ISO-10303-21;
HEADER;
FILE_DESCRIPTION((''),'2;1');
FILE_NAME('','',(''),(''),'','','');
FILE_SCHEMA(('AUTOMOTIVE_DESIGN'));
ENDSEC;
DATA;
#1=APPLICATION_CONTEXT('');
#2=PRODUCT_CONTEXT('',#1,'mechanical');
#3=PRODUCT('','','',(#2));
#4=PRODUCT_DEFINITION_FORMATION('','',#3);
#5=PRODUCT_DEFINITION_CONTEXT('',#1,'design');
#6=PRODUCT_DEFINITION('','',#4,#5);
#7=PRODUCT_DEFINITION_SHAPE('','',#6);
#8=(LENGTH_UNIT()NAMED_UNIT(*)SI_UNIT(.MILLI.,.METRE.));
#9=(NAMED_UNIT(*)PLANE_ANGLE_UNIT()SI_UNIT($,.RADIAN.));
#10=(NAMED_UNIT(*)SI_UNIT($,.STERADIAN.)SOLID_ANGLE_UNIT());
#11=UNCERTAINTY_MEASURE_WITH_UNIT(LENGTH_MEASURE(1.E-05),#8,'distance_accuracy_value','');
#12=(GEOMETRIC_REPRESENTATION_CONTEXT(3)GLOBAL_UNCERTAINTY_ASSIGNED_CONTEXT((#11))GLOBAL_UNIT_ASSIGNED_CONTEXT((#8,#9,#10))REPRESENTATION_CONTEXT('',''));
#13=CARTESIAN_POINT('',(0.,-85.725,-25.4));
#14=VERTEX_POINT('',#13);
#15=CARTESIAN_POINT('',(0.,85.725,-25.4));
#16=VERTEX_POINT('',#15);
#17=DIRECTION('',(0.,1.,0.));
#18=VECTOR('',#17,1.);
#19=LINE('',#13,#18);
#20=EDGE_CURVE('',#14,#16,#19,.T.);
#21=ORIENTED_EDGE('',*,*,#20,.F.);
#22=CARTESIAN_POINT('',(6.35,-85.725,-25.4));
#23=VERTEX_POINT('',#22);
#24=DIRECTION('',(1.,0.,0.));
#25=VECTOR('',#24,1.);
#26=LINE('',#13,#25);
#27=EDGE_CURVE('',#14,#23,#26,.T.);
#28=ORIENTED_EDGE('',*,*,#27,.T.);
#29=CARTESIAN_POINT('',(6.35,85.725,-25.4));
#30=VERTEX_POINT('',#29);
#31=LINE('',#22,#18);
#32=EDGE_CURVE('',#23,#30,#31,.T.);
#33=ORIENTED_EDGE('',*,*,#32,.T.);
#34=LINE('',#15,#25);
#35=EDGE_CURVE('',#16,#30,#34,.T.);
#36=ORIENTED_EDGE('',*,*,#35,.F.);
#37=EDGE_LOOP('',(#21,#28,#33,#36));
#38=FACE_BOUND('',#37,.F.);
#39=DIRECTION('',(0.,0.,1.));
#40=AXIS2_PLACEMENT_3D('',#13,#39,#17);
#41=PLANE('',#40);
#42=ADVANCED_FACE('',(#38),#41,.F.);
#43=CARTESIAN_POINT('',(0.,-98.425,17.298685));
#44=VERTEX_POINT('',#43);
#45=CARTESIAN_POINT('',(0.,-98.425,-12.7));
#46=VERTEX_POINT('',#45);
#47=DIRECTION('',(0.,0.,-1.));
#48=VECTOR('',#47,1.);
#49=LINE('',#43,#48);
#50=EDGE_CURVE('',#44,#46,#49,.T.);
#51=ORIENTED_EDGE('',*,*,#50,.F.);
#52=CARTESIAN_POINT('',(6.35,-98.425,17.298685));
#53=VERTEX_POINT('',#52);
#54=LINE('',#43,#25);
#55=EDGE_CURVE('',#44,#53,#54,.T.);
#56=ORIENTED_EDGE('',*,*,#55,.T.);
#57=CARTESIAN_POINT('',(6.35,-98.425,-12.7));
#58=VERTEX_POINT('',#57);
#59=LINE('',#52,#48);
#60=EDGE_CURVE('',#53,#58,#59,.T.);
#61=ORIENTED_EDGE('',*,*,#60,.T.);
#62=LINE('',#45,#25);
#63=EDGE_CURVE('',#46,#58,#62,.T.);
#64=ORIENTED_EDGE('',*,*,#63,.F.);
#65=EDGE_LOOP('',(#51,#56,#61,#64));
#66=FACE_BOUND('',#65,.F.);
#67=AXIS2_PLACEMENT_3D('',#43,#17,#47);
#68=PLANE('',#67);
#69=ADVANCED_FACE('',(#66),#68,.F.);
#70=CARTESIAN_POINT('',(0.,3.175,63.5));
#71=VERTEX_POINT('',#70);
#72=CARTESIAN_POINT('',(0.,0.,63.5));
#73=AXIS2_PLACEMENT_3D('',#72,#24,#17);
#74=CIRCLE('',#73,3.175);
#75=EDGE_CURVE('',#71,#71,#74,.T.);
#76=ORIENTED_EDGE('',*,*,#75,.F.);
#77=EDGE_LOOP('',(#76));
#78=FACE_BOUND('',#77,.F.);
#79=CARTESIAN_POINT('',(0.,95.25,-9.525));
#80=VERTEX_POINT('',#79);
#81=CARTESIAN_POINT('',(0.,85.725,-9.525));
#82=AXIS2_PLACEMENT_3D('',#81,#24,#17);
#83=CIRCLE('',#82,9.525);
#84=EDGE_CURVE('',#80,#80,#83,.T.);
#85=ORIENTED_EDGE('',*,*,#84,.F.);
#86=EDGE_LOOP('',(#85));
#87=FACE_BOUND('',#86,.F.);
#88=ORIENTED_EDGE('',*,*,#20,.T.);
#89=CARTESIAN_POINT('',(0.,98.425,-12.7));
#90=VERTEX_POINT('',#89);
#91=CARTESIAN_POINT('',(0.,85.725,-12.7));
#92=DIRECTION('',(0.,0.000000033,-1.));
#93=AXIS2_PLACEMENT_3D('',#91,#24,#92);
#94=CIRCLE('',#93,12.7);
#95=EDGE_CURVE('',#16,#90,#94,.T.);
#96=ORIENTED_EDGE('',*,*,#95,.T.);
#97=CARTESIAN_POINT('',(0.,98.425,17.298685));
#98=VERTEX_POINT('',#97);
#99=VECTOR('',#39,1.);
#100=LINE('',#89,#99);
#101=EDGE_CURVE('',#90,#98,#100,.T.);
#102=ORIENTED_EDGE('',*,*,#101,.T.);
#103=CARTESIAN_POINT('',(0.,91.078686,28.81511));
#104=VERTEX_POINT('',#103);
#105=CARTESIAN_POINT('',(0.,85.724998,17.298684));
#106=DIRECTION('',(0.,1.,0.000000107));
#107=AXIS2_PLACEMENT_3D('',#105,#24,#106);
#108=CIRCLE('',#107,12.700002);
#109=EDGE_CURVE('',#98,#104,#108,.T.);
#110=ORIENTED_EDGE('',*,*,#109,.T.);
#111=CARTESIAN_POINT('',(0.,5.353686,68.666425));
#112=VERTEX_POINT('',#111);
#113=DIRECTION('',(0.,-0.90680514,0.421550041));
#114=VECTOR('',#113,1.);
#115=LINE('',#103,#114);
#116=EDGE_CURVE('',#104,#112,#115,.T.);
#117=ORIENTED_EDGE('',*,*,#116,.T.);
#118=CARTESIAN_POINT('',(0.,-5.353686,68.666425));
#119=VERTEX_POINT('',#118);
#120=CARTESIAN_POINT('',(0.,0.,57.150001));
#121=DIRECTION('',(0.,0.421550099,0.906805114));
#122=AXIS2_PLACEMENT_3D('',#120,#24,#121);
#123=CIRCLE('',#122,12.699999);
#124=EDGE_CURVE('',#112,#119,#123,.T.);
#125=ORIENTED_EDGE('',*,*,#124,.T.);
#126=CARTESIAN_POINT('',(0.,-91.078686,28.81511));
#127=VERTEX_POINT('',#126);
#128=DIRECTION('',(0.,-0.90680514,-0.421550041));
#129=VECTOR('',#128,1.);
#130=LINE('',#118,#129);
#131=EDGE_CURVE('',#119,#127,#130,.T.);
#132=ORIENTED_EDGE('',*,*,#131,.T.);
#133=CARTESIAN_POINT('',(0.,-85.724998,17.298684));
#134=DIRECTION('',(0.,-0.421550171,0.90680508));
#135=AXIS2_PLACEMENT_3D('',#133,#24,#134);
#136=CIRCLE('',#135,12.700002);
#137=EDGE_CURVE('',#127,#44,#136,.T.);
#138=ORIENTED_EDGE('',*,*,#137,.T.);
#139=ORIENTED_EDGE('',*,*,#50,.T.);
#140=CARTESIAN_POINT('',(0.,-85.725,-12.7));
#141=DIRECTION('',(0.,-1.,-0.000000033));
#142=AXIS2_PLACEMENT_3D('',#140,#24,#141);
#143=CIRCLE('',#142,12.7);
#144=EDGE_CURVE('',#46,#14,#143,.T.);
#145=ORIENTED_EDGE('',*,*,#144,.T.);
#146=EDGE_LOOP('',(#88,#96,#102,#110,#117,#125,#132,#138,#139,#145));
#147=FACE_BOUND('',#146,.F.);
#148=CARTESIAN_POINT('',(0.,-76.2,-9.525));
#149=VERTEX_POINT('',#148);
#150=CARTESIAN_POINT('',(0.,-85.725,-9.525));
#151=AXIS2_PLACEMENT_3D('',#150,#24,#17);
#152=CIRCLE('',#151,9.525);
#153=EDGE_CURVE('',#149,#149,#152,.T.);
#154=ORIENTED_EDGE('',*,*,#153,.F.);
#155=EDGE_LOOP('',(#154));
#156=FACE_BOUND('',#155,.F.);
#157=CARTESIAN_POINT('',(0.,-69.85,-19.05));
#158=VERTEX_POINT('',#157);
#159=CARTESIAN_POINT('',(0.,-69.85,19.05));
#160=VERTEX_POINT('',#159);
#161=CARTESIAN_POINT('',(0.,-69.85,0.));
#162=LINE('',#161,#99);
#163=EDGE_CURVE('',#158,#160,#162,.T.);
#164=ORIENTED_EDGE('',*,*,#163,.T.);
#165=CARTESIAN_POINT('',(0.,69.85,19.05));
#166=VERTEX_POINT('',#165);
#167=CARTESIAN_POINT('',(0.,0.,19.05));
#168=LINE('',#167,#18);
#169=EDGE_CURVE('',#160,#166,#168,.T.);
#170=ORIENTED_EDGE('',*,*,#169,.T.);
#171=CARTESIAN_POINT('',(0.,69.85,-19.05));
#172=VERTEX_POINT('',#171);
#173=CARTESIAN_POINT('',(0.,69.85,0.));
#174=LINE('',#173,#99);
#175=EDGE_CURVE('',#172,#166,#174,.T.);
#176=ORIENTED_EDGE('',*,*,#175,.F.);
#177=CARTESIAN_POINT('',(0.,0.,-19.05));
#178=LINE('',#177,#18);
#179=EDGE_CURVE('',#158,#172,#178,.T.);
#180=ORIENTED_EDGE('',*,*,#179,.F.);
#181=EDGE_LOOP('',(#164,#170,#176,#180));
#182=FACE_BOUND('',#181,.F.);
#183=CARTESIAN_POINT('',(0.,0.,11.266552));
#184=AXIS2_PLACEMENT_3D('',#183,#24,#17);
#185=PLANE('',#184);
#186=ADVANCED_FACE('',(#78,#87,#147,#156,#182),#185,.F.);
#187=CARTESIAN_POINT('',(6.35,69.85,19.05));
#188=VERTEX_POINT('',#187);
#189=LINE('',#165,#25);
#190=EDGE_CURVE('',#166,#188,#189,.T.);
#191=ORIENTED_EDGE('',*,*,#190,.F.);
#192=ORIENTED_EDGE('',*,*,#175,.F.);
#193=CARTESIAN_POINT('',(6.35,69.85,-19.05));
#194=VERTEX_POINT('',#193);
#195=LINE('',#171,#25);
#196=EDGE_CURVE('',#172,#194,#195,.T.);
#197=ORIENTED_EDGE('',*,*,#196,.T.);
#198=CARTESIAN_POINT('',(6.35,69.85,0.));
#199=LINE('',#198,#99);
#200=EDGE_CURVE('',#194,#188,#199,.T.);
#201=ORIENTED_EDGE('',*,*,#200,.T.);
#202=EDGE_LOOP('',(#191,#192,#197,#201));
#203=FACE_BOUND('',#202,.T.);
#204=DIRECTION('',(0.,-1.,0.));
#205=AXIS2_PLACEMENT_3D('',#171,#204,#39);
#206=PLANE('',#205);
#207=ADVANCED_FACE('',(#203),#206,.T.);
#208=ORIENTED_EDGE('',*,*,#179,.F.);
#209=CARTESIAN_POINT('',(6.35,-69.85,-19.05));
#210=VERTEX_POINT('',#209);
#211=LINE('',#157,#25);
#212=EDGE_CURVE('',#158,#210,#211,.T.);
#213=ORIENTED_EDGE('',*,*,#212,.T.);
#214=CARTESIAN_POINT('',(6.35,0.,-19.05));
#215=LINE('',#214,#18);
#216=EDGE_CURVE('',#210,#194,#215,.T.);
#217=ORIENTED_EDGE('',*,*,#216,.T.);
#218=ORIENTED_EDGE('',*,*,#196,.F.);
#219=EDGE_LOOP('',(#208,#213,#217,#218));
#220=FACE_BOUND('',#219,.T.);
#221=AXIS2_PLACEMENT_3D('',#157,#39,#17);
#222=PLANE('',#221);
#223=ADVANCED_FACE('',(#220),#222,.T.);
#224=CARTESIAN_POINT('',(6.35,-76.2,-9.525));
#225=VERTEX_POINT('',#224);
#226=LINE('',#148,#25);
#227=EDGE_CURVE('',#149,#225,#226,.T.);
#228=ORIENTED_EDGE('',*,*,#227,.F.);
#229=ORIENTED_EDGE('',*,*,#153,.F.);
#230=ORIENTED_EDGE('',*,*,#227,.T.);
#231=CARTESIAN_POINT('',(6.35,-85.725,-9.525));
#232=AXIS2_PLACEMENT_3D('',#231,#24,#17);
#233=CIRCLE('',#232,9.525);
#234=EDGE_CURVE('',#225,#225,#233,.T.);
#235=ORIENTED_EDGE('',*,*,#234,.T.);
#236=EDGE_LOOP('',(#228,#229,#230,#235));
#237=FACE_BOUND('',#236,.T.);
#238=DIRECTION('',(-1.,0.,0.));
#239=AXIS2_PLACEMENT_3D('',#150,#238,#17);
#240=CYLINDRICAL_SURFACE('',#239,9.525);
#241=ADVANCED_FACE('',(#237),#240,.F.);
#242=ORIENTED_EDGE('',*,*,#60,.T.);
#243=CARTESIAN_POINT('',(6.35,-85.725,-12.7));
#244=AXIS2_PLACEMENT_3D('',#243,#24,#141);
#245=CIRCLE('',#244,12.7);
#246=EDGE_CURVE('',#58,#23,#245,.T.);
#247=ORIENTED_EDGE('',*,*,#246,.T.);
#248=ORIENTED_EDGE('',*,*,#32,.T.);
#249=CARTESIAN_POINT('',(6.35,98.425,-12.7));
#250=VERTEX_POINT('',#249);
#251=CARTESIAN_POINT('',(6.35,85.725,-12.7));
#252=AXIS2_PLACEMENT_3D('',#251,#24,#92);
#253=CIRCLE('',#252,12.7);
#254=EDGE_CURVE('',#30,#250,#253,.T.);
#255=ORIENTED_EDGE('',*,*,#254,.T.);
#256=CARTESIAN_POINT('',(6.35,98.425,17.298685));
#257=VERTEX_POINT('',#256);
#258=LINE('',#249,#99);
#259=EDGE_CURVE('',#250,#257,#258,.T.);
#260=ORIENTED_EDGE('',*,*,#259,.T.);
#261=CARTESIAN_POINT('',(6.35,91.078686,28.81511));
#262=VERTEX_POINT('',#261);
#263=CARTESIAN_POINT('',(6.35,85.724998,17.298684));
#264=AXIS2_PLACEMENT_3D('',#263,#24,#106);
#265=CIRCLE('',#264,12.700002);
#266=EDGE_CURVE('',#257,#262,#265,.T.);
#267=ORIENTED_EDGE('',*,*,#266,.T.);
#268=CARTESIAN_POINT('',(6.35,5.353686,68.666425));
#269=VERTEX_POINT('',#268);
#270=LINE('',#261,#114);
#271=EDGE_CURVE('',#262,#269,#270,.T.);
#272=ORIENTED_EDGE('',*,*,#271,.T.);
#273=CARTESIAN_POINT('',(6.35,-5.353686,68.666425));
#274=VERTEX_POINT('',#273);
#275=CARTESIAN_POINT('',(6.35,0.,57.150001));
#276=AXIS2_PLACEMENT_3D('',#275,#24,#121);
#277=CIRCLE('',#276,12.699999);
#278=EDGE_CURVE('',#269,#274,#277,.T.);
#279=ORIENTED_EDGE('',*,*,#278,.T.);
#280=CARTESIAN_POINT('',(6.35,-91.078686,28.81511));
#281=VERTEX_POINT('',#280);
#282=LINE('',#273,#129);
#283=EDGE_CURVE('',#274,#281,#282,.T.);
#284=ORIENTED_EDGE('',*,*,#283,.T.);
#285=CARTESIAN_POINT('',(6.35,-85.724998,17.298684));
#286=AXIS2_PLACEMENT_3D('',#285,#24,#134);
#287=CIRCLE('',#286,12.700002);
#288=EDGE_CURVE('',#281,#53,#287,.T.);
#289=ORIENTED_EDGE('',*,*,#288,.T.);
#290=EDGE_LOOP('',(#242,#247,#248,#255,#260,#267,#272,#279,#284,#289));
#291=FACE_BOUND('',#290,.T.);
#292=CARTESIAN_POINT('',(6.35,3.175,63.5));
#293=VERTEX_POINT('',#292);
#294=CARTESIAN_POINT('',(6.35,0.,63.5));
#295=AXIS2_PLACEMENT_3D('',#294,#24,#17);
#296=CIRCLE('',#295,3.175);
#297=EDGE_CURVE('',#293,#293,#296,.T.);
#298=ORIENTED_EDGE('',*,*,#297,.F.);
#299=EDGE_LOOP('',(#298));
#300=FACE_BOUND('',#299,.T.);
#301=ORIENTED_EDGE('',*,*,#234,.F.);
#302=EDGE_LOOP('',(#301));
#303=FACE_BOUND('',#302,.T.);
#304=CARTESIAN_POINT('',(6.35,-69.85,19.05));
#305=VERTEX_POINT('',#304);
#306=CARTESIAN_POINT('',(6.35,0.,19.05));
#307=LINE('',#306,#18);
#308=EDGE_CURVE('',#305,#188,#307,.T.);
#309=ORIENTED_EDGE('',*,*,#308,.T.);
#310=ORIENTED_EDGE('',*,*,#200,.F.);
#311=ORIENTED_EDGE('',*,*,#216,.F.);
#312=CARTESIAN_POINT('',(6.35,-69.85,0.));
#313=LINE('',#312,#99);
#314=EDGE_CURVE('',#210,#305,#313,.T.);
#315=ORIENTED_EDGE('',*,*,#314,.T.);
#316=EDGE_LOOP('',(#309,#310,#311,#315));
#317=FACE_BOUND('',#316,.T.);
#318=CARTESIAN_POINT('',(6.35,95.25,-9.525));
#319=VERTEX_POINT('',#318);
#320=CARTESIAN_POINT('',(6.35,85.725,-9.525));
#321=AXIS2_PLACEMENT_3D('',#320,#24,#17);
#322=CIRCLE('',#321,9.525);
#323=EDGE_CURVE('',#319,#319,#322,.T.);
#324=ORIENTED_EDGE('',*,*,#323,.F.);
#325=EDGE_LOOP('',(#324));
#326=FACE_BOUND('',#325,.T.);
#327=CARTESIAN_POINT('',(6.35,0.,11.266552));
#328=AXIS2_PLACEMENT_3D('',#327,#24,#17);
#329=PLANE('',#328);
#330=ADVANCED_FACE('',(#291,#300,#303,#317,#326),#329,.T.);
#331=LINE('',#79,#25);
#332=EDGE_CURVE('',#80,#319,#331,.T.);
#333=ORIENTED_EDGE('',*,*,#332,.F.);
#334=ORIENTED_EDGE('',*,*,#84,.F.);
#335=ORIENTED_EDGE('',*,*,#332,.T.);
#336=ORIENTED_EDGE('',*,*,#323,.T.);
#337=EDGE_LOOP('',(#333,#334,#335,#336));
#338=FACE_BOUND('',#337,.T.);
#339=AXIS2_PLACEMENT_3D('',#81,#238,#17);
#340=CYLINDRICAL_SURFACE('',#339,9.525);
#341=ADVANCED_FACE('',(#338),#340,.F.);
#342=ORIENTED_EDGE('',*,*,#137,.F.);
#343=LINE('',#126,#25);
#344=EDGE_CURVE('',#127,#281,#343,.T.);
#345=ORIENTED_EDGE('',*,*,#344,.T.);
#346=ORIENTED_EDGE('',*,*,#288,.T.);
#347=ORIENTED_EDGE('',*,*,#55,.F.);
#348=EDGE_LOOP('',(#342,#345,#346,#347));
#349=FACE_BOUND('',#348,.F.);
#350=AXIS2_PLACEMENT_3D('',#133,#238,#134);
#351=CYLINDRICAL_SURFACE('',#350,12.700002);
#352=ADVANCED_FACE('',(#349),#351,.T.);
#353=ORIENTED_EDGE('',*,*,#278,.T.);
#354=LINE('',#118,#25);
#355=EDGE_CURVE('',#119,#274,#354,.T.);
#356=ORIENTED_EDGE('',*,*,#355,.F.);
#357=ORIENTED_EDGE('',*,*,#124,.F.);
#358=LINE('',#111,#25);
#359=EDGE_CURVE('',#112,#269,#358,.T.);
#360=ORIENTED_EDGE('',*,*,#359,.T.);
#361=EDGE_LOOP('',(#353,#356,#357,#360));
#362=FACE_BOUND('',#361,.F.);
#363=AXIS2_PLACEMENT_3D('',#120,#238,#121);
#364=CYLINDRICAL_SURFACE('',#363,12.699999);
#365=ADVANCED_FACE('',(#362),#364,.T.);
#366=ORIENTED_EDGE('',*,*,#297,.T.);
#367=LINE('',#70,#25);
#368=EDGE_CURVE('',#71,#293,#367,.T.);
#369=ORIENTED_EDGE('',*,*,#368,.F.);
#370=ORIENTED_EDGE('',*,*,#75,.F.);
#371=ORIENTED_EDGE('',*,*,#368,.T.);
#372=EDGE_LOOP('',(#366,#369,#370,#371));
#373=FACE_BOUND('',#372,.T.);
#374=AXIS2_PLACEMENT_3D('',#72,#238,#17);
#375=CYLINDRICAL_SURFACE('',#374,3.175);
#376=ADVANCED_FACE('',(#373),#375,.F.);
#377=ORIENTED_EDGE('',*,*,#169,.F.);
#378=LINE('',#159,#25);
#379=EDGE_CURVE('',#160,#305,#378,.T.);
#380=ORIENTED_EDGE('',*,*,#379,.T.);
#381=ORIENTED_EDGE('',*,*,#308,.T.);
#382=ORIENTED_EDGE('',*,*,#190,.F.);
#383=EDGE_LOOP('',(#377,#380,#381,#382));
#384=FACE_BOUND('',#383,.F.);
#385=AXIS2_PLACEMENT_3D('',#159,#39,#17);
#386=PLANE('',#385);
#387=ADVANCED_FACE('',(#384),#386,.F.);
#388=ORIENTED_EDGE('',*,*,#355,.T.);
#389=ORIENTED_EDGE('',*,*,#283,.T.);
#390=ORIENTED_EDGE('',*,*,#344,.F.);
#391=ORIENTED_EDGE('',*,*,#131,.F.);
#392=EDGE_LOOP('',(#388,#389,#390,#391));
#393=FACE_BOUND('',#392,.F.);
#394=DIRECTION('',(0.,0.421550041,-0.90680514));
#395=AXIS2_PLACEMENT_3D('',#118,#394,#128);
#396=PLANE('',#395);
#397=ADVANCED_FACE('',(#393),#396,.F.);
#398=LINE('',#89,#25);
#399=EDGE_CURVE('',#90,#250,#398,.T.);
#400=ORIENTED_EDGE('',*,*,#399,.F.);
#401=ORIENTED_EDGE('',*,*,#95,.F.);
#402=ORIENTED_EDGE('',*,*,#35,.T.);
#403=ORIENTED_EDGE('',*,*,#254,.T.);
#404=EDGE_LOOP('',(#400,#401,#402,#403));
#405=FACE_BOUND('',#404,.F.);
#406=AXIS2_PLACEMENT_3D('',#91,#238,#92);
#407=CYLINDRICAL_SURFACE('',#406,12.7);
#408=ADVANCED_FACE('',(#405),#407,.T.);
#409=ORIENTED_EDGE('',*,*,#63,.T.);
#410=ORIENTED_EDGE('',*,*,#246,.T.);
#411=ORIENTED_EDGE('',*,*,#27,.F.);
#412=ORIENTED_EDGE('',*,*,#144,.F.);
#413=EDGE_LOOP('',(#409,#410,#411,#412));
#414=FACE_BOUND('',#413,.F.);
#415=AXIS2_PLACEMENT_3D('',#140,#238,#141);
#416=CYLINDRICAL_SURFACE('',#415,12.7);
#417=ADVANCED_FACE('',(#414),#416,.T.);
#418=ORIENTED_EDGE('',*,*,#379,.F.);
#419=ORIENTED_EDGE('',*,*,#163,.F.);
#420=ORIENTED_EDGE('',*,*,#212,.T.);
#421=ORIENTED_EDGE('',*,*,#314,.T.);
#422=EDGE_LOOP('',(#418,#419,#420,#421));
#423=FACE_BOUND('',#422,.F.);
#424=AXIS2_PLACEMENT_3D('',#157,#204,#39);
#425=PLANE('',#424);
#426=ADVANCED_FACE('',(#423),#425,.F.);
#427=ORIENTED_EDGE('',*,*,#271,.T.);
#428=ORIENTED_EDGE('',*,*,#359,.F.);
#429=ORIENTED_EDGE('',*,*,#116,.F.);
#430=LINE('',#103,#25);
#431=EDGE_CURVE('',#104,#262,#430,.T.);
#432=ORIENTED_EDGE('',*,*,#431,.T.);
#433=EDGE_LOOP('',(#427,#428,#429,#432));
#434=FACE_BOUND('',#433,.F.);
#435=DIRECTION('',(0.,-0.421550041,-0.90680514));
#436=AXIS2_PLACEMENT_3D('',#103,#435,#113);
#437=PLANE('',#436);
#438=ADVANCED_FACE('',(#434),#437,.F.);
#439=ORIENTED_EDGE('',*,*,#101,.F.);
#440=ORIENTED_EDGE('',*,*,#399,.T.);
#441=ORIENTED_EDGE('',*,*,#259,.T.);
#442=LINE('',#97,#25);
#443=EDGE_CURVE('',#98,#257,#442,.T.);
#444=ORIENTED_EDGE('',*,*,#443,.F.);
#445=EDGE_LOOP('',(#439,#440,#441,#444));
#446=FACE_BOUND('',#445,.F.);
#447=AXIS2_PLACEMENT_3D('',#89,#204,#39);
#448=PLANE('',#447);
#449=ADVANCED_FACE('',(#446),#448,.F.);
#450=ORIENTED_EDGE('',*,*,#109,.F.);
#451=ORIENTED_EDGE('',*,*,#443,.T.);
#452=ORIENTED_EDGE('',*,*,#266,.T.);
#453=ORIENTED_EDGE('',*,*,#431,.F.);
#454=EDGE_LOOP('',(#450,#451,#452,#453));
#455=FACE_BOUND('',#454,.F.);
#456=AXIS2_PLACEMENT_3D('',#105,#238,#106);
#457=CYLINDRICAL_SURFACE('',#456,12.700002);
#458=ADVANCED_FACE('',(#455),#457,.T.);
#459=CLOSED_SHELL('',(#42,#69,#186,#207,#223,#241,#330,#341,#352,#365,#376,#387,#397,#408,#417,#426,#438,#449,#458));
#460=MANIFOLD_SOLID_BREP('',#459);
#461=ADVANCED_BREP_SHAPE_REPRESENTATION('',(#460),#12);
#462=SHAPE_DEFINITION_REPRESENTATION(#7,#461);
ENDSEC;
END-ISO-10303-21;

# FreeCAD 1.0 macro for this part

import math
import FreeCAD as App
import Part
import Sketcher

V = App.Vector
Q = App.Units.Quantity

doc = App.newDocument("Part")
body = doc.addObject("PartDesign::Body", "Body")

sketch1 = body.newObject("Sketcher::SketchObject", "Sketch")
sketch1.AttachmentSupport = (doc.getObject("YZ_Plane"), [""])
sketch1.MapMode = "FlatFace"
sketch1.addGeometry([
    Part.LineSegment(V(-85.725, -25.4, 0), V(85.725, -25.4, 0)),
    Part.ArcOfCircle(Part.Circle(V(85.725, -12.7, 0), V(0, 0, 1), 12.7), math.radians(-89.999998), math.radians(-0.000002)),
    Part.LineSegment(V(98.425, -12.7, 0), V(98.425, 17.298685, 0)),
    Part.ArcOfCircle(Part.Circle(V(85.724998, 17.298684, 0), V(0, 0, 1), 12.700002), math.radians(0.000006), math.radians(65.067505)),
    Part.LineSegment(V(91.078686, 28.81511, 0), V(5.353686, 68.666425, 0)),
    Part.ArcOfCircle(Part.Circle(V(0, 57.150001, 0), V(0, 0, 1), 12.699999), math.radians(65.06751), math.radians(114.93249)),
    Part.LineSegment(V(-5.353686, 68.666425, 0), V(-91.078686, 28.81511, 0)),
    Part.ArcOfCircle(Part.Circle(V(-85.724998, 17.298684, 0), V(0, 0, 1), 12.700002), math.radians(114.932495), math.radians(179.999994)),
    Part.LineSegment(V(-98.425, 17.298685, 0), V(-98.425, -12.7, 0)),
    Part.ArcOfCircle(Part.Circle(V(-85.725, -12.7, 0), V(0, 0, 1), 12.7), math.radians(-179.999998), math.radians(-90.000002)),
    Part.Circle(V(-85.725, -9.525, 0), V(0, 0, 1), 9.525),
    Part.LineSegment(V(69.85, -19.05, 0), V(-69.85, -19.05, 0)),
    Part.LineSegment(V(-69.85, -19.05, 0), V(-69.85, 19.05, 0)),
    Part.LineSegment(V(-69.85, 19.05, 0), V(69.85, 19.05, 0)),
    Part.LineSegment(V(69.85, 19.05, 0), V(69.85, -19.05, 0)),
    Part.Circle(V(85.725, -9.525, 0), V(0, 0, 1), 9.525),
    Part.Circle(V(0, 63.5, 0), V(0, 0, 1), 3.175),
], False)
sketch1.addConstraint([
    Sketcher.Constraint("Tangent", 0, 2, 1, 1),
    Sketcher.Constraint("Tangent", 1, 2, 2, 1),
    Sketcher.Constraint("Tangent", 2, 2, 3, 1),
    Sketcher.Constraint("Tangent", 3, 2, 4, 1),
    Sketcher.Constraint("Tangent", 4, 2, 5, 1),
    Sketcher.Constraint("Tangent", 5, 2, 6, 1),
    Sketcher.Constraint("Tangent", 6, 2, 7, 1),
    Sketcher.Constraint("Tangent", 7, 2, 8, 1),
    Sketcher.Constraint("Tangent", 8, 2, 9, 1),
    Sketcher.Constraint("Tangent", 9, 2, 0, 1),
    Sketcher.Constraint("Coincident", 11, 2, 12, 1),
    Sketcher.Constraint("Coincident", 12, 2, 13, 1),
    Sketcher.Constraint("Coincident", 13, 2, 14, 1),
    Sketcher.Constraint("Coincident", 14, 2, 11, 1),
    Sketcher.Constraint("Horizontal", 0),
    Sketcher.Constraint("Vertical", 2),
    Sketcher.Constraint("Vertical", 8),
    Sketcher.Constraint("Horizontal", 11),
    Sketcher.Constraint("Vertical", 12),
    Sketcher.Constraint("Horizontal", 13),
    Sketcher.Constraint("Vertical", 14),
    Sketcher.Constraint("Equal", 1, 3),
    Sketcher.Constraint("Equal", 1, 5),
    Sketcher.Constraint("Equal", 3, 7),
    Sketcher.Constraint("Equal", 7, 9),
    Sketcher.Constraint("Equal", 10, 15),
    Sketcher.Constraint("Symmetric", 11, 2, 13, 2, -1, 1),
    Sketcher.Constraint("Symmetric", 3, 3, 7, 3, -2),
    Sketcher.Constraint("Symmetric", 10, 3, 15, 3, -2),
    Sketcher.Constraint("PointOnObject", 5, 3, -2),
    Sketcher.Constraint("PointOnObject", 16, 3, -2),
    Sketcher.Constraint("Vertical", 9, 3, 10, 3),
    Sketcher.Constraint("Radius", 1, Q("0.5 in")),
    Sketcher.Constraint("Diameter", 10, Q("0.75 in")),
    Sketcher.Constraint("Diameter", 16, Q("0.25 in")),
    Sketcher.Constraint("DistanceX", 11, 2, 11, 1, Q("5.5 in")),
    Sketcher.Constraint("DistanceY", 12, 1, 12, 2, Q("1.5 in")),
    Sketcher.Constraint("DistanceY", 0, 2, -1, 1, Q("1 in")),
    Sketcher.Constraint("DistanceX", 0, 1, 0, 2, Q("6.75 in")),
    Sketcher.Constraint("DistanceY", -1, 1, 16, 3, Q("2.5 in")),
    Sketcher.Constraint("DistanceY", -1, 1, 5, 3, Q("2.25 in")),
    Sketcher.Constraint("DistanceY", 10, 3, -1, 1, Q("0.375 in")),
    Sketcher.Constraint("DistanceY", 2, 1, 2, 2, 29.998685),
])
pad1 = body.newObject("PartDesign::Pad", "Pad")
pad1.Profile = sketch1
pad1.Length = Q("0.25 in")

doc.recompute()
